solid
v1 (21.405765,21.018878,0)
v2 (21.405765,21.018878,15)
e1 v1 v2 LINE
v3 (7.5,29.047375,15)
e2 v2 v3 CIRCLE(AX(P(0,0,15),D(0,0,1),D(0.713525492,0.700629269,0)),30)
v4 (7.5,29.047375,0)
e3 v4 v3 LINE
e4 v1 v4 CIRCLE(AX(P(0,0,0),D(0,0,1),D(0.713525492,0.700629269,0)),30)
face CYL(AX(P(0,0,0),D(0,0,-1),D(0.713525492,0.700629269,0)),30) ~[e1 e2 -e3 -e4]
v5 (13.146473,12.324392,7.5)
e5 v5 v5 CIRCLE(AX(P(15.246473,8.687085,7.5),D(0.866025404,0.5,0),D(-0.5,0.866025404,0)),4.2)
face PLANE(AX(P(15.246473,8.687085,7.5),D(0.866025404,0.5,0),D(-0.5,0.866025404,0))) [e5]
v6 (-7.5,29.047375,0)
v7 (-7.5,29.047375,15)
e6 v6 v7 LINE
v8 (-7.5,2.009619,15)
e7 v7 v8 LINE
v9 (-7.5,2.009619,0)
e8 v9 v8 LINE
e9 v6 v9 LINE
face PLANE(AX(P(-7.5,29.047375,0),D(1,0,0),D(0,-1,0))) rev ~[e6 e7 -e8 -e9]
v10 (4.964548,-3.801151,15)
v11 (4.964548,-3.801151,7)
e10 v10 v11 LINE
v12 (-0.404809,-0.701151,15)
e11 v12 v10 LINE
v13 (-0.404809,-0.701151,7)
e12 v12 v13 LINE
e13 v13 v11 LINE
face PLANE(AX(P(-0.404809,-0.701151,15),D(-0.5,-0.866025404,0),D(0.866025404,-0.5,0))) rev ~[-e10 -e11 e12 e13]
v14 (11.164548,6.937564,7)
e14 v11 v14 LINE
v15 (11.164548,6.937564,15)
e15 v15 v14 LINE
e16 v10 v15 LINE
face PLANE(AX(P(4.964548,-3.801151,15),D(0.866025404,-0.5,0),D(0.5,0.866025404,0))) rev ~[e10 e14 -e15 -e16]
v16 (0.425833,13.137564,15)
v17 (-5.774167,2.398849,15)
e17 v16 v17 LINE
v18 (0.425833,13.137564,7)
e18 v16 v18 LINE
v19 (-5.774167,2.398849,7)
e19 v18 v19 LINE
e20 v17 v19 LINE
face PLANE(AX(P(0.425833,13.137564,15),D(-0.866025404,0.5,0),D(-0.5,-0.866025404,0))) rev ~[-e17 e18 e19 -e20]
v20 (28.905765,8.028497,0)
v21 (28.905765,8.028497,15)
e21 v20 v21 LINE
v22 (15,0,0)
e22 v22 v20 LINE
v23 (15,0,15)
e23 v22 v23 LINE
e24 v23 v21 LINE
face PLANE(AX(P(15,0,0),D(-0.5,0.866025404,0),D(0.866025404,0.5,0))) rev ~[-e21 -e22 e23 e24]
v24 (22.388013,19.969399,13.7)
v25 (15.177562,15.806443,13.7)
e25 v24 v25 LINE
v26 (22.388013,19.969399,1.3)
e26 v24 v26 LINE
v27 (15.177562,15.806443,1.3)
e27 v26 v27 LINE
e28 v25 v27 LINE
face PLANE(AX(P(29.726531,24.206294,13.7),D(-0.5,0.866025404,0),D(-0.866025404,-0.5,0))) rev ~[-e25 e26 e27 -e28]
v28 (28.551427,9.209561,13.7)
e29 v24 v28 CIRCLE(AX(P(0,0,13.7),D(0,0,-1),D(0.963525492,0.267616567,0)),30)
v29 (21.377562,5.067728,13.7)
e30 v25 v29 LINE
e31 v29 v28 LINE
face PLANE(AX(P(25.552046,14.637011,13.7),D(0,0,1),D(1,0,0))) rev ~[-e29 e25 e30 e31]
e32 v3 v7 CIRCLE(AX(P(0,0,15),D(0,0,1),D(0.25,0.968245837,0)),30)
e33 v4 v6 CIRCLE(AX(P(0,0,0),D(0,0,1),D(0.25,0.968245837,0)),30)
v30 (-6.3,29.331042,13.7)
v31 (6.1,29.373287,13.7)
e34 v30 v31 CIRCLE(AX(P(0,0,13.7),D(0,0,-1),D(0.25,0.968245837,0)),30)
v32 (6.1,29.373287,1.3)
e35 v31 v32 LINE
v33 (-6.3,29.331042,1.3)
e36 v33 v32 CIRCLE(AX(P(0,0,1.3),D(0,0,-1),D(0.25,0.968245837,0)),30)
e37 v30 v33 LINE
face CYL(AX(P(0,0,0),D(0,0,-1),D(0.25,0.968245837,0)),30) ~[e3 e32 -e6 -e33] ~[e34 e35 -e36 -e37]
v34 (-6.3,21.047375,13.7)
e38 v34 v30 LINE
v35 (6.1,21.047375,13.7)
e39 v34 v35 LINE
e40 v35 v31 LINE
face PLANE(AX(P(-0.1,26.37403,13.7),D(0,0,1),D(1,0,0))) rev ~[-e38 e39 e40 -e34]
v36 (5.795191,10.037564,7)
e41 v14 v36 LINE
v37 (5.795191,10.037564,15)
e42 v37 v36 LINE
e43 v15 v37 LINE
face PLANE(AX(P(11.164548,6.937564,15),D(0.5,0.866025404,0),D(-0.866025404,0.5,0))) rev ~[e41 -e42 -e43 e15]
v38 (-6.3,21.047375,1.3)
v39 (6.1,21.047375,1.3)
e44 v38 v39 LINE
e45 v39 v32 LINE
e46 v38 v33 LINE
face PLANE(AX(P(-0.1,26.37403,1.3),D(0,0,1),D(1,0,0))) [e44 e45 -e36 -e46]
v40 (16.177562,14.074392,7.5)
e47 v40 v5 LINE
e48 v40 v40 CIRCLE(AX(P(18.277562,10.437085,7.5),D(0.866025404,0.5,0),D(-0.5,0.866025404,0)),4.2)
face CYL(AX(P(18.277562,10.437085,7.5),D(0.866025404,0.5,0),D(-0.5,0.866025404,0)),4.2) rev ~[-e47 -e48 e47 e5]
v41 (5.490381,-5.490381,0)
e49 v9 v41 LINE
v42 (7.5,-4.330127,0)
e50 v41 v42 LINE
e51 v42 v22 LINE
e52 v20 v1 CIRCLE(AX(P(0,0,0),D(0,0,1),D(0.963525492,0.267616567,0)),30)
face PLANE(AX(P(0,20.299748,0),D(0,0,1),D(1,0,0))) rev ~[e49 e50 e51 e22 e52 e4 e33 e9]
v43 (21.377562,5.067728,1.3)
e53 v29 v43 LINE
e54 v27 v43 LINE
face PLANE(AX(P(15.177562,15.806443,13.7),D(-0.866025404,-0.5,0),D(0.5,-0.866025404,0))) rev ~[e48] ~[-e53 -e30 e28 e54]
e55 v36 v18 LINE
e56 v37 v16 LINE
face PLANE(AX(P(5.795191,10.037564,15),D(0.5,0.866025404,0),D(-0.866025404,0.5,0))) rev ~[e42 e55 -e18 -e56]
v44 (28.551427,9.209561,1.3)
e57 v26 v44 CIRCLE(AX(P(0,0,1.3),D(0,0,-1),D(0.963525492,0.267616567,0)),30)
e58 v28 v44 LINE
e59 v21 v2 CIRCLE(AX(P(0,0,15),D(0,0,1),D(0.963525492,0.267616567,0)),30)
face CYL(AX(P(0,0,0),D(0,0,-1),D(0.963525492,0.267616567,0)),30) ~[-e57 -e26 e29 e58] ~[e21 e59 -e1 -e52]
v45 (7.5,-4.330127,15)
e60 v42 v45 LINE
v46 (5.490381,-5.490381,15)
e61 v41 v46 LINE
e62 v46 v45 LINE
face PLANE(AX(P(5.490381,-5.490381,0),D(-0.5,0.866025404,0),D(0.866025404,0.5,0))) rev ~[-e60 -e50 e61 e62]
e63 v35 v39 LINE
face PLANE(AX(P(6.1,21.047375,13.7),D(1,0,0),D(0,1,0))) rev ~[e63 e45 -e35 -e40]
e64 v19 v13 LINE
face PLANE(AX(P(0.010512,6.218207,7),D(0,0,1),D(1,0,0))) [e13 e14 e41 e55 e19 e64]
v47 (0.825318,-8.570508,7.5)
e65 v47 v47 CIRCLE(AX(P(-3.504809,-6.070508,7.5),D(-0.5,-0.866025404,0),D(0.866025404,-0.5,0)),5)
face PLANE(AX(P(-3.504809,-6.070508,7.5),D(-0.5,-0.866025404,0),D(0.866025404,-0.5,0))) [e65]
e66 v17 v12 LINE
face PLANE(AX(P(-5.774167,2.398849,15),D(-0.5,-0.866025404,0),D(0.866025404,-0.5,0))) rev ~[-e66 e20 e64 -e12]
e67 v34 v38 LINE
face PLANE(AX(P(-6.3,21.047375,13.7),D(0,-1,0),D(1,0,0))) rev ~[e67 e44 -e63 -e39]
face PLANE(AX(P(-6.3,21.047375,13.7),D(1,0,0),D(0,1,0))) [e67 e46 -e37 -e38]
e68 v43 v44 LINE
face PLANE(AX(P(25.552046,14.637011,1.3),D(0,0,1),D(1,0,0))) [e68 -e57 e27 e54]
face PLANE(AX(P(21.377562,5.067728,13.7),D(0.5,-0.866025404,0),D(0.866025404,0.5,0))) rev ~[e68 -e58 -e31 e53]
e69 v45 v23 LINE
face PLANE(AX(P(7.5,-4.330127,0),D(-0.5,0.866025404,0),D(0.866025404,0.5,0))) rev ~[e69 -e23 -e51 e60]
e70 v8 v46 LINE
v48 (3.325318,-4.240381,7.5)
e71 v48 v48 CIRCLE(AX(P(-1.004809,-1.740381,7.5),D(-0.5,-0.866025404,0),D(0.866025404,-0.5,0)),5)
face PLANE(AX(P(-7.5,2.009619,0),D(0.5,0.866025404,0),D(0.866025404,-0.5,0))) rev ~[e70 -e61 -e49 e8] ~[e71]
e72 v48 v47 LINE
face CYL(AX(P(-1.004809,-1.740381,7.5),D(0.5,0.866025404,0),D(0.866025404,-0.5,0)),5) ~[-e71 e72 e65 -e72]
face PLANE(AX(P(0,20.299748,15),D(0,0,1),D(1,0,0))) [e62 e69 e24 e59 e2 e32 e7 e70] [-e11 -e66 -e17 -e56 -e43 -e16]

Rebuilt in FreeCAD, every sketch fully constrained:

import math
import FreeCAD as App
import Part
import Sketcher
from FreeCAD import Vector
Q = App.Units.Quantity

doc = App.newDocument("Part")
body = doc.addObject("PartDesign::Body", "Body")

sketch1 = body.newObject("Sketcher::SketchObject", "Sketch")
sketch1.AttachmentSupport = (doc.getObject("XY_Plane"), [""])
sketch1.MapMode = "FlatFace"
sketch1.addGeometry([
    Part.ArcOfCircle(Part.Circle(Vector(0, 0, 0), Vector(0, 0, 1), 30), math.radians(75.522488), math.radians(104.477512)),
    Part.LineSegment(Vector(-7.5, 29.047375, 0), Vector(-7.5, 2.009619, 0)),
    Part.LineSegment(Vector(-7.5, 2.009619, 0), Vector(5.490381, -5.490381, 0)),
    Part.LineSegment(Vector(5.490381, -5.490381, 0), Vector(7.5, -4.330127, 0)),
    Part.LineSegment(Vector(7.5, -4.330127, 0), Vector(15, 0, 0)),
    Part.LineSegment(Vector(15, 0, 0), Vector(28.905765, 8.028497, 0)),
    Part.ArcOfCircle(Part.Circle(Vector(0, 0, 0), Vector(0, 0, 1), 30), math.radians(15.522488), math.radians(44.477512)),
    Part.ArcOfCircle(Part.Circle(Vector(0, 0, 0), Vector(0, 0, 1), 30), math.radians(44.477512), math.radians(75.522488)),
], False)
sketch1.addConstraint([
    Sketcher.Constraint("Coincident", 0, 2, 1, 1),
    Sketcher.Constraint("Coincident", 1, 2, 2, 1),
    Sketcher.Constraint("Coincident", 2, 2, 3, 1),
    Sketcher.Constraint("Coincident", 3, 2, 4, 1),
    Sketcher.Constraint("Coincident", 4, 2, 5, 1),
    Sketcher.Constraint("Coincident", 5, 2, 6, 1),
    Sketcher.Constraint("Tangent", 6, 2, 7, 1),
    Sketcher.Constraint("Tangent", 7, 2, 0, 1),
    Sketcher.Constraint("Vertical", 1),
    Sketcher.Constraint("Coincident", 0, 3, -1, 1),
    Sketcher.Constraint("Coincident", 6, 3, -1, 1),
    Sketcher.Constraint("PointOnObject", 4, 2, -1),
    Sketcher.Constraint("Parallel", 3, 4),
    Sketcher.Constraint("Parallel", 4, 5),
    Sketcher.Constraint("Horizontal", 0, 2, 7, 2),
    Sketcher.Constraint("Vertical", 3, 2, 7, 2),
    Sketcher.Constraint("Radius", 0, 30.0),
    Sketcher.Constraint("Angle", 2, Q("-30 deg")),
    Sketcher.Constraint("Angle", 3, Q("30 deg")),
    Sketcher.Constraint("Distance", 2, 15.0),
    Sketcher.Constraint("DistanceX", -1, 1, 4, 2, 15.0),
    Sketcher.Constraint("DistanceX", 1, 2, 3, 2, 15.0),
    Sketcher.Constraint("DistanceX", 6, 2, 5, 2, 7.5),
])
pad1 = body.newObject("PartDesign::Pad", "Pad")
pad1.Profile = sketch1
pad1.Length = 15

sketch2 = body.newObject("Sketcher::SketchObject", "Sketch001")
sketch2.AttachmentSupport = (doc.getObject("XY_Plane"), [""])
sketch2.MapMode = "FlatFace"
sketch2.AttachmentOffset = App.Placement(Vector(0, 0, 15), App.Rotation())
sketch2.addGeometry([
    Part.LineSegment(Vector(-5.774167, 2.398849, 0), Vector(-0.404809, -0.701151, 0)),
    Part.LineSegment(Vector(-0.404809, -0.701151, 0), Vector(4.964548, -3.801151, 0)),
    Part.LineSegment(Vector(4.964548, -3.801151, 0), Vector(11.164548, 6.937564, 0)),
    Part.LineSegment(Vector(11.164548, 6.937564, 0), Vector(5.795191, 10.037564, 0)),
    Part.LineSegment(Vector(5.795191, 10.037564, 0), Vector(0.425833, 13.137564, 0)),
    Part.LineSegment(Vector(0.425833, 13.137564, 0), Vector(-5.774167, 2.398849, 0)),
], False)
sketch2.addConstraint([
    Sketcher.Constraint("Coincident", 0, 2, 1, 1),
    Sketcher.Constraint("Coincident", 1, 2, 2, 1),
    Sketcher.Constraint("Coincident", 2, 2, 3, 1),
    Sketcher.Constraint("Coincident", 3, 2, 4, 1),
    Sketcher.Constraint("Coincident", 4, 2, 5, 1),
    Sketcher.Constraint("Coincident", 5, 2, 0, 1),
    Sketcher.Constraint("Parallel", 0, 1),
    Sketcher.Constraint("Perpendicular", 1, 2),
    Sketcher.Constraint("Perpendicular", 2, 3),
    Sketcher.Constraint("Parallel", 3, 4),
    Sketcher.Constraint("Perpendicular", 4, 5),
    Sketcher.Constraint("Equal", 0, 1),
    Sketcher.Constraint("Equal", 1, 3),
    Sketcher.Constraint("Angle", 0, Q("-30 deg")),
    Sketcher.Constraint("Distance", 0, 6.2),
    Sketcher.Constraint("Distance", 2, 12.4),
    Sketcher.Constraint("DistanceX", 0, 2, -1, 1, 0.404809),
    Sketcher.Constraint("DistanceY", 0, 2, -1, 1, 0.701151),
])
pocket1 = body.newObject("PartDesign::Pocket", "Pocket")
pocket1.Profile = sketch2
pocket1.Length = 8

sketch3 = body.newObject("Sketcher::SketchObject", "Sketch002")
sketch3.AttachmentSupport = (doc.getObject("XY_Plane"), [""])
sketch3.MapMode = "FlatFace"
sketch3.AttachmentOffset = App.Placement(Vector(0, 0, 13.7), App.Rotation())
sketch3.addGeometry([
    Part.LineSegment(Vector(-6.3, 31.700686, 0), Vector(-6.3, 21.047375, 0)),
    Part.LineSegment(Vector(-6.3, 21.047375, 0), Vector(6.1, 21.047375, 0)),
    Part.LineSegment(Vector(6.1, 21.047375, 0), Vector(6.1, 31.700686, 0)),
    Part.LineSegment(Vector(6.1, 31.700686, 0), Vector(-6.3, 31.700686, 0)),
    Part.LineSegment(Vector(15.177562, 15.806443, 0), Vector(21.377562, 5.067728, 0)),
    Part.LineSegment(Vector(21.377562, 5.067728, 0), Vector(35.926531, 13.467579, 0)),
    Part.LineSegment(Vector(35.926531, 13.467579, 0), Vector(29.726531, 24.206294, 0)),
    Part.LineSegment(Vector(29.726531, 24.206294, 0), Vector(15.177562, 15.806443, 0)),
], False)
sketch3.addConstraint([
    Sketcher.Constraint("Coincident", 0, 2, 1, 1),
    Sketcher.Constraint("Coincident", 1, 2, 2, 1),
    Sketcher.Constraint("Coincident", 2, 2, 3, 1),
    Sketcher.Constraint("Coincident", 3, 2, 0, 1),
    Sketcher.Constraint("Coincident", 4, 2, 5, 1),
    Sketcher.Constraint("Coincident", 5, 2, 6, 1),
    Sketcher.Constraint("Coincident", 6, 2, 7, 1),
    Sketcher.Constraint("Coincident", 7, 2, 4, 1),
    Sketcher.Constraint("Vertical", 0),
    Sketcher.Constraint("Horizontal", 1),
    Sketcher.Constraint("Vertical", 2),
    Sketcher.Constraint("Horizontal", 3),
    Sketcher.Constraint("Perpendicular", 4, 5),
    Sketcher.Constraint("Perpendicular", 5, 6),
    Sketcher.Constraint("Perpendicular", 6, 7),
    Sketcher.Constraint("Angle", 4, Q("-60 deg")),
    Sketcher.Constraint("DistanceX", 1, 1, 1, 2, 12.4),
    Sketcher.Constraint("Distance", 4, 12.4),
    Sketcher.Constraint("DistanceX", 0, 2, -1, 1, 6.3),
    Sketcher.Constraint("DistanceY", 0, 2, 0, 1, 10.653311),
    Sketcher.Constraint("DistanceX", -1, 1, 4, 2, 21.377562),
    Sketcher.Constraint("DistanceX", -1, 1, 5, 2, 35.926531),
    Sketcher.Constraint("DistanceY", -1, 1, 5, 2, 13.467579),
    Sketcher.Constraint("DistanceY", 4, 2, 2, 2, 26.632958),
])
pocket2 = body.newObject("PartDesign::Pocket", "Pocket001")
pocket2.Profile = sketch3
pocket2.Length = 12.4

sketch4 = body.newObject("Sketcher::SketchObject", "Sketch003")
sketch4.Placement = App.Placement(Vector(-1.004809, -1.740381, 0), App.Rotation(Vector(0.866025404, -0.5, 0), Vector(0, 0, 1), Vector(-0.5, -0.866025404, 0), "ZXY"))
sketch4.addGeometry(Part.Circle(Vector(0, 7.5, 0), Vector(0, 0, 1), 5), False)
sketch4.addConstraint([
    Sketcher.Constraint("PointOnObject", 0, 3, -2),
    Sketcher.Constraint("Diameter", 0, 10.0),
    Sketcher.Constraint("DistanceY", -1, 1, 0, 3, 7.5),
])
pad2 = body.newObject("PartDesign::Pad", "Pad001")
pad2.Profile = sketch4
pad2.Length = 5

sketch5 = body.newObject("Sketcher::SketchObject", "Sketch004")
sketch5.Placement = App.Placement(Vector(18.227562, 10.523688, 0), App.Rotation(Vector(-0.5, 0.866025404, 0), Vector(0, 0, 1), Vector(0.866025404, 0.5, 0), "ZXY"))
sketch5.addGeometry(Part.Circle(Vector(-0.1, 7.5, 0), Vector(0, 0, 1), 4.2), False)
sketch5.addConstraint([
    Sketcher.Constraint("Diameter", 0, 8.4),
    Sketcher.Constraint("DistanceX", 0, 3, -1, 1, 0.1),
    Sketcher.Constraint("DistanceY", -1, 1, 0, 3, 7.5),
])
pocket3 = body.newObject("PartDesign::Pocket", "Pocket002")
pocket3.Profile = sketch5
pocket3.Length = 3.5

doc.recompute()
